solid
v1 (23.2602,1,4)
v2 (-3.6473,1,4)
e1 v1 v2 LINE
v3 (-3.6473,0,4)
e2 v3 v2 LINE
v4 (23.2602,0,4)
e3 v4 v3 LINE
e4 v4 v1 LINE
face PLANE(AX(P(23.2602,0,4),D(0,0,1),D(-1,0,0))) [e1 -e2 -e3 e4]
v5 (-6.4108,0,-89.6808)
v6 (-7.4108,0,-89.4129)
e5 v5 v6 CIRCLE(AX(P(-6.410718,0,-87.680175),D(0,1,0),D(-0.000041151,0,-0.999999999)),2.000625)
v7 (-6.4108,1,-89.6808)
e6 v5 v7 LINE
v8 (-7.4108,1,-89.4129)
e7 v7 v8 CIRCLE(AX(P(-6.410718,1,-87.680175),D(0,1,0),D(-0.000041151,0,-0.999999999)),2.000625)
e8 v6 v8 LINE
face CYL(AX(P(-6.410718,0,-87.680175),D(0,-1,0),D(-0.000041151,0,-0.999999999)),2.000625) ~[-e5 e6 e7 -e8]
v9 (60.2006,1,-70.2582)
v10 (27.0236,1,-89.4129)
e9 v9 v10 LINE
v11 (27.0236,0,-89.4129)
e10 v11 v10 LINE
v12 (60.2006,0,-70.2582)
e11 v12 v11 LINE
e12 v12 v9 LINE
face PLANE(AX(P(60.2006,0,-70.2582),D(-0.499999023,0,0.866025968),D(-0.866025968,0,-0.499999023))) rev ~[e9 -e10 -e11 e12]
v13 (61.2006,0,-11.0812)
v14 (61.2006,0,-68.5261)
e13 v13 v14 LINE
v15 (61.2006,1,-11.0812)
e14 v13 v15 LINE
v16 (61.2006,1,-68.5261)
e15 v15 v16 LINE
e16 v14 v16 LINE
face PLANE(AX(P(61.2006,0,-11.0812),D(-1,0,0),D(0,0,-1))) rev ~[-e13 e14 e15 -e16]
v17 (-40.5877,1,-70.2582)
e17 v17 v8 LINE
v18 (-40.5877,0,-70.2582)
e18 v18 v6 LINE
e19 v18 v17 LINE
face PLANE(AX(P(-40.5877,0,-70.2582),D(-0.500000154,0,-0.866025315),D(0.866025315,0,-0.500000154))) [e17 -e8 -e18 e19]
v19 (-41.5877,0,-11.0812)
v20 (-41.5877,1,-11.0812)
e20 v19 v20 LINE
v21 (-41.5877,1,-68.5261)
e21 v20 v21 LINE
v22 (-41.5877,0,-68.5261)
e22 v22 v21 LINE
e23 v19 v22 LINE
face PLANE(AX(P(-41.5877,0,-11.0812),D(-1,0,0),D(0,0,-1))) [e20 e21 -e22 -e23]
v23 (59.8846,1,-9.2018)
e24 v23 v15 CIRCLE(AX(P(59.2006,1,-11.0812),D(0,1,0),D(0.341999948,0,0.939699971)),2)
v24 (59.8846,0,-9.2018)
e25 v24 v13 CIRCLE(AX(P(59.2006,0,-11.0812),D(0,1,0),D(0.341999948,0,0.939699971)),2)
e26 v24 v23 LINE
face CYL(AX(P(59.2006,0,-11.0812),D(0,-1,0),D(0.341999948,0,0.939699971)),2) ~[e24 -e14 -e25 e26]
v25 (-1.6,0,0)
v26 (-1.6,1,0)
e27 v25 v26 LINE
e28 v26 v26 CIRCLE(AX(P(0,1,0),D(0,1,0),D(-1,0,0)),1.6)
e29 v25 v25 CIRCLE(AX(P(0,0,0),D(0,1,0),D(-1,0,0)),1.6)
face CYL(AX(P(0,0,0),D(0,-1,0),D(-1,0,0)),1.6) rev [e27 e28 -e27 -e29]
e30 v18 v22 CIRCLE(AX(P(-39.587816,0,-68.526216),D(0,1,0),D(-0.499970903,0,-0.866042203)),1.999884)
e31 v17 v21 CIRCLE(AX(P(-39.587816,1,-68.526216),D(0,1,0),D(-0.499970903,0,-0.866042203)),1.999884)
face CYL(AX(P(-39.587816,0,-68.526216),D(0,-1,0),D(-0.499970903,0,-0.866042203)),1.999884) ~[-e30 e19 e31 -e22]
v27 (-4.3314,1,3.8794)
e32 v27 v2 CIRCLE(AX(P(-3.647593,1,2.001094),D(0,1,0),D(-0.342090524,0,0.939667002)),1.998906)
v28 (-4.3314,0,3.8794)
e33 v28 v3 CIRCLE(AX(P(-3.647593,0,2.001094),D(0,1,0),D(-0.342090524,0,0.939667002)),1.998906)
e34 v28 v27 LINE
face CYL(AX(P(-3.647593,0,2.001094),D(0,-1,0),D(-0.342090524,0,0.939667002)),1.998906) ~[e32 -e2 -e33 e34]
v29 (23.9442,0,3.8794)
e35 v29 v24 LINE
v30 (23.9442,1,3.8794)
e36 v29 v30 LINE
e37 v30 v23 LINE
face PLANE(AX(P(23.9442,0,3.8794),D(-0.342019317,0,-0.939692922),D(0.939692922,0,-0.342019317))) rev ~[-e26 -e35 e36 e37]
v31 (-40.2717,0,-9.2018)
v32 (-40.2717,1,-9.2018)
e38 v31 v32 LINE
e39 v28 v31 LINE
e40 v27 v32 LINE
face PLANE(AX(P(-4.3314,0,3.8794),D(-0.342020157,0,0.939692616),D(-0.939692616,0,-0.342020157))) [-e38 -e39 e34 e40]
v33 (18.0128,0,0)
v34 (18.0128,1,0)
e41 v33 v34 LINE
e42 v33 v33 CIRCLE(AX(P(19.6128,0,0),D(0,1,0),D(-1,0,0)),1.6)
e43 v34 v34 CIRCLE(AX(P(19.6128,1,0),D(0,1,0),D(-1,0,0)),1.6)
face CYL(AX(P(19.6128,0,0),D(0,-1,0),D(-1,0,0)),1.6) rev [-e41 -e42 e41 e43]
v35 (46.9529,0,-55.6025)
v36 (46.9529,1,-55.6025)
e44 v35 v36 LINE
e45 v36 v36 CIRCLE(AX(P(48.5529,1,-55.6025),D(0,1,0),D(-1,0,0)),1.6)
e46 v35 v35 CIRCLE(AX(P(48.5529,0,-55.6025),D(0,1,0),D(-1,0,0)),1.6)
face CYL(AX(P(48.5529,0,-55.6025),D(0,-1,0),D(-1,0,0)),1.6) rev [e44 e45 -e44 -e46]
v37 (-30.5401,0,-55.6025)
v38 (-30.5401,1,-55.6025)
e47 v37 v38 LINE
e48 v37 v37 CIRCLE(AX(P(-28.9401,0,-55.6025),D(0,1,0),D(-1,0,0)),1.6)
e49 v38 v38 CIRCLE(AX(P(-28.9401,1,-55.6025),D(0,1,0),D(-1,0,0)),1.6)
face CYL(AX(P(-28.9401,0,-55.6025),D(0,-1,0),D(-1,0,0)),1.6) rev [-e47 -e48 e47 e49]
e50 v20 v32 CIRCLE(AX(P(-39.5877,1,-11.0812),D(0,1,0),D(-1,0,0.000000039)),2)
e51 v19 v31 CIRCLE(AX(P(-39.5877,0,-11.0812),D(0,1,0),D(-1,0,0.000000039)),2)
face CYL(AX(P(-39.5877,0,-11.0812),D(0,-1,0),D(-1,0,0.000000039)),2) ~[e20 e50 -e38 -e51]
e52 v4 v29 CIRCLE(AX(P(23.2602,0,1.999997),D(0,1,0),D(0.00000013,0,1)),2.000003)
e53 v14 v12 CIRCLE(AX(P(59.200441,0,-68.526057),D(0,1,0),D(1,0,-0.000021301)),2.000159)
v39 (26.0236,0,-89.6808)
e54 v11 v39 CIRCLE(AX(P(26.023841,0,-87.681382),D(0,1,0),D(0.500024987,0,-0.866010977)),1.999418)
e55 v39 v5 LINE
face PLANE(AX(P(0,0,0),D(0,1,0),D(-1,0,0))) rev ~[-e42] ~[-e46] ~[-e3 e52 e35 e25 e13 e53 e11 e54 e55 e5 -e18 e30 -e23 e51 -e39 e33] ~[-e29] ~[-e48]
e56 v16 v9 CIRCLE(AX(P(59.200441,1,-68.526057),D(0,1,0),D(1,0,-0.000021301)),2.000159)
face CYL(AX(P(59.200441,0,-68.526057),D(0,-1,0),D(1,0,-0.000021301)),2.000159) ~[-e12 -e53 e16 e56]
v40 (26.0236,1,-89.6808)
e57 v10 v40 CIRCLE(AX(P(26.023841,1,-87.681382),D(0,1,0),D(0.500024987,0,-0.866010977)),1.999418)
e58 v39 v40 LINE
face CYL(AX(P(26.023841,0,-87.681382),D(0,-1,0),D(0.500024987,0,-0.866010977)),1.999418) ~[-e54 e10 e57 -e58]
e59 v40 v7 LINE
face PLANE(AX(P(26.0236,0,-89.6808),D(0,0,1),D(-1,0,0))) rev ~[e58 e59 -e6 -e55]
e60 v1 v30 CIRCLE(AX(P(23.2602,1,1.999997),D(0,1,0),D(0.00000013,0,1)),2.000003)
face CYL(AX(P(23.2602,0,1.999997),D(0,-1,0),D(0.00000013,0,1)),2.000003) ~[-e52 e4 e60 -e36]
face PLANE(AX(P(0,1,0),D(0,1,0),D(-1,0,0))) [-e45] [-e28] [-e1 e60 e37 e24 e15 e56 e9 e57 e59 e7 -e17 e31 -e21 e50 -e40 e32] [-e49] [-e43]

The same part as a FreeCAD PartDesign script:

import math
import FreeCAD as App
import Part
import Sketcher
Q = App.Units.Quantity

doc = App.newDocument("Part")
body = doc.addObject("PartDesign::Body", "Body")

sketch1 = body.newObject("Sketcher::SketchObject", "Sketch")
sketch1.AttachmentSupport = (doc.getObject("XZ_Plane"), [""])
sketch1.MapMode = "FlatFace"
sketch1.addGeometry([
    Part.ArcOfCircle(Part.Circle(App.Vector(23.2602, 2, 0), App.Vector(0, 0, 1), 2), math.radians(70.001229), math.radians(90)),
    Part.LineSegment(App.Vector(23.9442, 3.8794, 0), App.Vector(59.8846, -9.2018, 0)),
    Part.ArcOfCircle(Part.Circle(App.Vector(59.2006, -11.0812, 0), App.Vector(0, 0, 1), 2), math.radians(0), math.radians(70.001229)),
    Part.LineSegment(App.Vector(61.2006, -11.0812, 0), App.Vector(61.2006, -68.5261, 0)),
    Part.ArcOfCircle(Part.Circle(App.Vector(59.2006, -68.5261, 0), App.Vector(0, 0, 1), 2), math.radians(-60.000705), math.radians(0)),
    Part.LineSegment(App.Vector(60.2006, -70.2582, 0), App.Vector(27.0236, -89.4129, 0)),
    Part.ArcOfCircle(Part.Circle(App.Vector(26.0236, -87.6808, 0), App.Vector(0, 0, 1), 2.000043), math.radians(-90), math.radians(-60.000705)),
    Part.LineSegment(App.Vector(26.0236, -89.6808, 0), App.Vector(-6.4108, -89.6808, 0)),
    Part.ArcOfCircle(Part.Circle(App.Vector(-6.4108, -87.6808, 0), App.Vector(0, 0, 1), 2), math.radians(-119.999295), math.radians(-90)),
    Part.LineSegment(App.Vector(-7.4108, -89.4129, 0), App.Vector(-40.5877, -70.2582, 0)),
    Part.ArcOfCircle(Part.Circle(App.Vector(-39.5877, -68.5261, 0), App.Vector(0, 0, 1), 2.000043), math.radians(180), math.radians(240.000705)),
    Part.LineSegment(App.Vector(-41.5877, -68.5261, 0), App.Vector(-41.5877, -11.0812, 0)),
    Part.ArcOfCircle(Part.Circle(App.Vector(-39.5877, -11.0812, 0), App.Vector(0, 0, 1), 2), math.radians(109.998771), math.radians(180)),
    Part.LineSegment(App.Vector(-40.2717, -9.2018, 0), App.Vector(-4.3314, 3.8794, 0)),
    Part.ArcOfCircle(Part.Circle(App.Vector(-3.647593, 2.001094, 0), App.Vector(0, 0, 1), 1.998906), math.radians(89.991601), math.radians(110.004291)),
    Part.LineSegment(App.Vector(-3.6473, 4, 0), App.Vector(23.2602, 4, 0)),
    Part.Circle(App.Vector(48.5529, -55.6025, 0), App.Vector(0, 0, 1), 1.6),
    Part.Circle(App.Vector(-28.9401, -55.6025, 0), App.Vector(0, 0, 1), 1.6),
    Part.Circle(App.Vector(19.6128, 0, 0), App.Vector(0, 0, 1), 1.6),
    Part.Circle(App.Vector(0, 0, 0), App.Vector(0, 0, 1), 1.6),
], False)
sketch1.addConstraint([
    Sketcher.Constraint("Tangent", 0, 1, 1, 1),
    Sketcher.Constraint("Tangent", 1, 2, 2, 2),
    Sketcher.Constraint("Tangent", 2, 1, 3, 1),
    Sketcher.Constraint("Tangent", 3, 2, 4, 2),
    Sketcher.Constraint("Tangent", 4, 1, 5, 1),
    Sketcher.Constraint("Tangent", 5, 2, 6, 2),
    Sketcher.Constraint("Tangent", 6, 1, 7, 1),
    Sketcher.Constraint("Tangent", 7, 2, 8, 2),
    Sketcher.Constraint("Tangent", 8, 1, 9, 1),
    Sketcher.Constraint("Tangent", 9, 2, 10, 2),
    Sketcher.Constraint("Tangent", 10, 1, 11, 1),
    Sketcher.Constraint("Tangent", 11, 2, 12, 2),
    Sketcher.Constraint("Tangent", 12, 1, 13, 1),
    Sketcher.Constraint("Tangent", 13, 2, 14, 2),
    Sketcher.Constraint("Tangent", 14, 1, 15, 1),
    Sketcher.Constraint("Tangent", 15, 2, 0, 2),
    Sketcher.Constraint("Vertical", 3),
    Sketcher.Constraint("Horizontal", 7),
    Sketcher.Constraint("Vertical", 11),
    Sketcher.Constraint("Horizontal", 15),
    Sketcher.Constraint("Coincident", 19, 3, -1, 1),
    Sketcher.Constraint("Equal", 0, 2),
    Sketcher.Constraint("Equal", 2, 4),
    Sketcher.Constraint("Equal", 4, 6),
    Sketcher.Constraint("Equal", 6, 8),
    Sketcher.Constraint("Equal", 8, 10),
    Sketcher.Constraint("Equal", 10, 12),
    Sketcher.Constraint("Equal", 16, 17),
    Sketcher.Constraint("Equal", 17, 18),
    Sketcher.Constraint("Equal", 18, 19),
    Sketcher.Constraint("PointOnObject", 18, 3, -1),
    Sketcher.Constraint("Horizontal", 4, 3, 10, 3),
    Sketcher.Constraint("Horizontal", 2, 3, 12, 3),
    Sketcher.Constraint("Horizontal", 16, 3, 17, 3),
    Sketcher.Constraint("Horizontal", 5, 2, 8, 1),
    Sketcher.Constraint("Horizontal", 1, 2, 12, 1),
    Sketcher.Constraint("Horizontal", 0, 1, 13, 2),
    Sketcher.Constraint("Radius", 0, Q("2 mm")),
    Sketcher.Constraint("Diameter", 16, Q("3.2 mm")),
    Sketcher.Constraint("Angle", 1, Q("-20 deg")),
    Sketcher.Constraint("Angle", 5, Q("-150 deg")),
    Sketcher.Constraint("DistanceY", -1, 1, 0, 3, Q("2 mm")),
    Sketcher.Constraint("DistanceY", 3, 2, 3, 1, Q("57.445 mm")),
    Sketcher.Constraint("DistanceX", 17, 3, -1, 1, Q("28.94 mm")),
    Sketcher.Constraint("DistanceX", 12, 3, 14, 3, Q("35.94 mm")),
    Sketcher.Constraint("DistanceX", 18, 3, 16, 3, Q("28.94 mm")),
    Sketcher.Constraint("DistanceX", 14, 1, 18, 3, Q("23.26 mm")),
    Sketcher.Constraint("DistanceX", 7, 2, 7, 1, Q("32.4344 mm")),
    Sketcher.Constraint("DistanceX", 15, 1, 15, 2, Q("26.9075 mm")),
    Sketcher.Constraint("DistanceX", -1, 1, 16, 3, Q("48.553 mm")),
    Sketcher.Constraint("DistanceY", 16, 3, -1, 1, Q("55.6025 mm")),
])
pad1 = body.newObject("PartDesign::Pad", "Pad")
pad1.Profile = sketch1
pad1.Length = 1
pad1.Reversed = True

doc.recompute()
